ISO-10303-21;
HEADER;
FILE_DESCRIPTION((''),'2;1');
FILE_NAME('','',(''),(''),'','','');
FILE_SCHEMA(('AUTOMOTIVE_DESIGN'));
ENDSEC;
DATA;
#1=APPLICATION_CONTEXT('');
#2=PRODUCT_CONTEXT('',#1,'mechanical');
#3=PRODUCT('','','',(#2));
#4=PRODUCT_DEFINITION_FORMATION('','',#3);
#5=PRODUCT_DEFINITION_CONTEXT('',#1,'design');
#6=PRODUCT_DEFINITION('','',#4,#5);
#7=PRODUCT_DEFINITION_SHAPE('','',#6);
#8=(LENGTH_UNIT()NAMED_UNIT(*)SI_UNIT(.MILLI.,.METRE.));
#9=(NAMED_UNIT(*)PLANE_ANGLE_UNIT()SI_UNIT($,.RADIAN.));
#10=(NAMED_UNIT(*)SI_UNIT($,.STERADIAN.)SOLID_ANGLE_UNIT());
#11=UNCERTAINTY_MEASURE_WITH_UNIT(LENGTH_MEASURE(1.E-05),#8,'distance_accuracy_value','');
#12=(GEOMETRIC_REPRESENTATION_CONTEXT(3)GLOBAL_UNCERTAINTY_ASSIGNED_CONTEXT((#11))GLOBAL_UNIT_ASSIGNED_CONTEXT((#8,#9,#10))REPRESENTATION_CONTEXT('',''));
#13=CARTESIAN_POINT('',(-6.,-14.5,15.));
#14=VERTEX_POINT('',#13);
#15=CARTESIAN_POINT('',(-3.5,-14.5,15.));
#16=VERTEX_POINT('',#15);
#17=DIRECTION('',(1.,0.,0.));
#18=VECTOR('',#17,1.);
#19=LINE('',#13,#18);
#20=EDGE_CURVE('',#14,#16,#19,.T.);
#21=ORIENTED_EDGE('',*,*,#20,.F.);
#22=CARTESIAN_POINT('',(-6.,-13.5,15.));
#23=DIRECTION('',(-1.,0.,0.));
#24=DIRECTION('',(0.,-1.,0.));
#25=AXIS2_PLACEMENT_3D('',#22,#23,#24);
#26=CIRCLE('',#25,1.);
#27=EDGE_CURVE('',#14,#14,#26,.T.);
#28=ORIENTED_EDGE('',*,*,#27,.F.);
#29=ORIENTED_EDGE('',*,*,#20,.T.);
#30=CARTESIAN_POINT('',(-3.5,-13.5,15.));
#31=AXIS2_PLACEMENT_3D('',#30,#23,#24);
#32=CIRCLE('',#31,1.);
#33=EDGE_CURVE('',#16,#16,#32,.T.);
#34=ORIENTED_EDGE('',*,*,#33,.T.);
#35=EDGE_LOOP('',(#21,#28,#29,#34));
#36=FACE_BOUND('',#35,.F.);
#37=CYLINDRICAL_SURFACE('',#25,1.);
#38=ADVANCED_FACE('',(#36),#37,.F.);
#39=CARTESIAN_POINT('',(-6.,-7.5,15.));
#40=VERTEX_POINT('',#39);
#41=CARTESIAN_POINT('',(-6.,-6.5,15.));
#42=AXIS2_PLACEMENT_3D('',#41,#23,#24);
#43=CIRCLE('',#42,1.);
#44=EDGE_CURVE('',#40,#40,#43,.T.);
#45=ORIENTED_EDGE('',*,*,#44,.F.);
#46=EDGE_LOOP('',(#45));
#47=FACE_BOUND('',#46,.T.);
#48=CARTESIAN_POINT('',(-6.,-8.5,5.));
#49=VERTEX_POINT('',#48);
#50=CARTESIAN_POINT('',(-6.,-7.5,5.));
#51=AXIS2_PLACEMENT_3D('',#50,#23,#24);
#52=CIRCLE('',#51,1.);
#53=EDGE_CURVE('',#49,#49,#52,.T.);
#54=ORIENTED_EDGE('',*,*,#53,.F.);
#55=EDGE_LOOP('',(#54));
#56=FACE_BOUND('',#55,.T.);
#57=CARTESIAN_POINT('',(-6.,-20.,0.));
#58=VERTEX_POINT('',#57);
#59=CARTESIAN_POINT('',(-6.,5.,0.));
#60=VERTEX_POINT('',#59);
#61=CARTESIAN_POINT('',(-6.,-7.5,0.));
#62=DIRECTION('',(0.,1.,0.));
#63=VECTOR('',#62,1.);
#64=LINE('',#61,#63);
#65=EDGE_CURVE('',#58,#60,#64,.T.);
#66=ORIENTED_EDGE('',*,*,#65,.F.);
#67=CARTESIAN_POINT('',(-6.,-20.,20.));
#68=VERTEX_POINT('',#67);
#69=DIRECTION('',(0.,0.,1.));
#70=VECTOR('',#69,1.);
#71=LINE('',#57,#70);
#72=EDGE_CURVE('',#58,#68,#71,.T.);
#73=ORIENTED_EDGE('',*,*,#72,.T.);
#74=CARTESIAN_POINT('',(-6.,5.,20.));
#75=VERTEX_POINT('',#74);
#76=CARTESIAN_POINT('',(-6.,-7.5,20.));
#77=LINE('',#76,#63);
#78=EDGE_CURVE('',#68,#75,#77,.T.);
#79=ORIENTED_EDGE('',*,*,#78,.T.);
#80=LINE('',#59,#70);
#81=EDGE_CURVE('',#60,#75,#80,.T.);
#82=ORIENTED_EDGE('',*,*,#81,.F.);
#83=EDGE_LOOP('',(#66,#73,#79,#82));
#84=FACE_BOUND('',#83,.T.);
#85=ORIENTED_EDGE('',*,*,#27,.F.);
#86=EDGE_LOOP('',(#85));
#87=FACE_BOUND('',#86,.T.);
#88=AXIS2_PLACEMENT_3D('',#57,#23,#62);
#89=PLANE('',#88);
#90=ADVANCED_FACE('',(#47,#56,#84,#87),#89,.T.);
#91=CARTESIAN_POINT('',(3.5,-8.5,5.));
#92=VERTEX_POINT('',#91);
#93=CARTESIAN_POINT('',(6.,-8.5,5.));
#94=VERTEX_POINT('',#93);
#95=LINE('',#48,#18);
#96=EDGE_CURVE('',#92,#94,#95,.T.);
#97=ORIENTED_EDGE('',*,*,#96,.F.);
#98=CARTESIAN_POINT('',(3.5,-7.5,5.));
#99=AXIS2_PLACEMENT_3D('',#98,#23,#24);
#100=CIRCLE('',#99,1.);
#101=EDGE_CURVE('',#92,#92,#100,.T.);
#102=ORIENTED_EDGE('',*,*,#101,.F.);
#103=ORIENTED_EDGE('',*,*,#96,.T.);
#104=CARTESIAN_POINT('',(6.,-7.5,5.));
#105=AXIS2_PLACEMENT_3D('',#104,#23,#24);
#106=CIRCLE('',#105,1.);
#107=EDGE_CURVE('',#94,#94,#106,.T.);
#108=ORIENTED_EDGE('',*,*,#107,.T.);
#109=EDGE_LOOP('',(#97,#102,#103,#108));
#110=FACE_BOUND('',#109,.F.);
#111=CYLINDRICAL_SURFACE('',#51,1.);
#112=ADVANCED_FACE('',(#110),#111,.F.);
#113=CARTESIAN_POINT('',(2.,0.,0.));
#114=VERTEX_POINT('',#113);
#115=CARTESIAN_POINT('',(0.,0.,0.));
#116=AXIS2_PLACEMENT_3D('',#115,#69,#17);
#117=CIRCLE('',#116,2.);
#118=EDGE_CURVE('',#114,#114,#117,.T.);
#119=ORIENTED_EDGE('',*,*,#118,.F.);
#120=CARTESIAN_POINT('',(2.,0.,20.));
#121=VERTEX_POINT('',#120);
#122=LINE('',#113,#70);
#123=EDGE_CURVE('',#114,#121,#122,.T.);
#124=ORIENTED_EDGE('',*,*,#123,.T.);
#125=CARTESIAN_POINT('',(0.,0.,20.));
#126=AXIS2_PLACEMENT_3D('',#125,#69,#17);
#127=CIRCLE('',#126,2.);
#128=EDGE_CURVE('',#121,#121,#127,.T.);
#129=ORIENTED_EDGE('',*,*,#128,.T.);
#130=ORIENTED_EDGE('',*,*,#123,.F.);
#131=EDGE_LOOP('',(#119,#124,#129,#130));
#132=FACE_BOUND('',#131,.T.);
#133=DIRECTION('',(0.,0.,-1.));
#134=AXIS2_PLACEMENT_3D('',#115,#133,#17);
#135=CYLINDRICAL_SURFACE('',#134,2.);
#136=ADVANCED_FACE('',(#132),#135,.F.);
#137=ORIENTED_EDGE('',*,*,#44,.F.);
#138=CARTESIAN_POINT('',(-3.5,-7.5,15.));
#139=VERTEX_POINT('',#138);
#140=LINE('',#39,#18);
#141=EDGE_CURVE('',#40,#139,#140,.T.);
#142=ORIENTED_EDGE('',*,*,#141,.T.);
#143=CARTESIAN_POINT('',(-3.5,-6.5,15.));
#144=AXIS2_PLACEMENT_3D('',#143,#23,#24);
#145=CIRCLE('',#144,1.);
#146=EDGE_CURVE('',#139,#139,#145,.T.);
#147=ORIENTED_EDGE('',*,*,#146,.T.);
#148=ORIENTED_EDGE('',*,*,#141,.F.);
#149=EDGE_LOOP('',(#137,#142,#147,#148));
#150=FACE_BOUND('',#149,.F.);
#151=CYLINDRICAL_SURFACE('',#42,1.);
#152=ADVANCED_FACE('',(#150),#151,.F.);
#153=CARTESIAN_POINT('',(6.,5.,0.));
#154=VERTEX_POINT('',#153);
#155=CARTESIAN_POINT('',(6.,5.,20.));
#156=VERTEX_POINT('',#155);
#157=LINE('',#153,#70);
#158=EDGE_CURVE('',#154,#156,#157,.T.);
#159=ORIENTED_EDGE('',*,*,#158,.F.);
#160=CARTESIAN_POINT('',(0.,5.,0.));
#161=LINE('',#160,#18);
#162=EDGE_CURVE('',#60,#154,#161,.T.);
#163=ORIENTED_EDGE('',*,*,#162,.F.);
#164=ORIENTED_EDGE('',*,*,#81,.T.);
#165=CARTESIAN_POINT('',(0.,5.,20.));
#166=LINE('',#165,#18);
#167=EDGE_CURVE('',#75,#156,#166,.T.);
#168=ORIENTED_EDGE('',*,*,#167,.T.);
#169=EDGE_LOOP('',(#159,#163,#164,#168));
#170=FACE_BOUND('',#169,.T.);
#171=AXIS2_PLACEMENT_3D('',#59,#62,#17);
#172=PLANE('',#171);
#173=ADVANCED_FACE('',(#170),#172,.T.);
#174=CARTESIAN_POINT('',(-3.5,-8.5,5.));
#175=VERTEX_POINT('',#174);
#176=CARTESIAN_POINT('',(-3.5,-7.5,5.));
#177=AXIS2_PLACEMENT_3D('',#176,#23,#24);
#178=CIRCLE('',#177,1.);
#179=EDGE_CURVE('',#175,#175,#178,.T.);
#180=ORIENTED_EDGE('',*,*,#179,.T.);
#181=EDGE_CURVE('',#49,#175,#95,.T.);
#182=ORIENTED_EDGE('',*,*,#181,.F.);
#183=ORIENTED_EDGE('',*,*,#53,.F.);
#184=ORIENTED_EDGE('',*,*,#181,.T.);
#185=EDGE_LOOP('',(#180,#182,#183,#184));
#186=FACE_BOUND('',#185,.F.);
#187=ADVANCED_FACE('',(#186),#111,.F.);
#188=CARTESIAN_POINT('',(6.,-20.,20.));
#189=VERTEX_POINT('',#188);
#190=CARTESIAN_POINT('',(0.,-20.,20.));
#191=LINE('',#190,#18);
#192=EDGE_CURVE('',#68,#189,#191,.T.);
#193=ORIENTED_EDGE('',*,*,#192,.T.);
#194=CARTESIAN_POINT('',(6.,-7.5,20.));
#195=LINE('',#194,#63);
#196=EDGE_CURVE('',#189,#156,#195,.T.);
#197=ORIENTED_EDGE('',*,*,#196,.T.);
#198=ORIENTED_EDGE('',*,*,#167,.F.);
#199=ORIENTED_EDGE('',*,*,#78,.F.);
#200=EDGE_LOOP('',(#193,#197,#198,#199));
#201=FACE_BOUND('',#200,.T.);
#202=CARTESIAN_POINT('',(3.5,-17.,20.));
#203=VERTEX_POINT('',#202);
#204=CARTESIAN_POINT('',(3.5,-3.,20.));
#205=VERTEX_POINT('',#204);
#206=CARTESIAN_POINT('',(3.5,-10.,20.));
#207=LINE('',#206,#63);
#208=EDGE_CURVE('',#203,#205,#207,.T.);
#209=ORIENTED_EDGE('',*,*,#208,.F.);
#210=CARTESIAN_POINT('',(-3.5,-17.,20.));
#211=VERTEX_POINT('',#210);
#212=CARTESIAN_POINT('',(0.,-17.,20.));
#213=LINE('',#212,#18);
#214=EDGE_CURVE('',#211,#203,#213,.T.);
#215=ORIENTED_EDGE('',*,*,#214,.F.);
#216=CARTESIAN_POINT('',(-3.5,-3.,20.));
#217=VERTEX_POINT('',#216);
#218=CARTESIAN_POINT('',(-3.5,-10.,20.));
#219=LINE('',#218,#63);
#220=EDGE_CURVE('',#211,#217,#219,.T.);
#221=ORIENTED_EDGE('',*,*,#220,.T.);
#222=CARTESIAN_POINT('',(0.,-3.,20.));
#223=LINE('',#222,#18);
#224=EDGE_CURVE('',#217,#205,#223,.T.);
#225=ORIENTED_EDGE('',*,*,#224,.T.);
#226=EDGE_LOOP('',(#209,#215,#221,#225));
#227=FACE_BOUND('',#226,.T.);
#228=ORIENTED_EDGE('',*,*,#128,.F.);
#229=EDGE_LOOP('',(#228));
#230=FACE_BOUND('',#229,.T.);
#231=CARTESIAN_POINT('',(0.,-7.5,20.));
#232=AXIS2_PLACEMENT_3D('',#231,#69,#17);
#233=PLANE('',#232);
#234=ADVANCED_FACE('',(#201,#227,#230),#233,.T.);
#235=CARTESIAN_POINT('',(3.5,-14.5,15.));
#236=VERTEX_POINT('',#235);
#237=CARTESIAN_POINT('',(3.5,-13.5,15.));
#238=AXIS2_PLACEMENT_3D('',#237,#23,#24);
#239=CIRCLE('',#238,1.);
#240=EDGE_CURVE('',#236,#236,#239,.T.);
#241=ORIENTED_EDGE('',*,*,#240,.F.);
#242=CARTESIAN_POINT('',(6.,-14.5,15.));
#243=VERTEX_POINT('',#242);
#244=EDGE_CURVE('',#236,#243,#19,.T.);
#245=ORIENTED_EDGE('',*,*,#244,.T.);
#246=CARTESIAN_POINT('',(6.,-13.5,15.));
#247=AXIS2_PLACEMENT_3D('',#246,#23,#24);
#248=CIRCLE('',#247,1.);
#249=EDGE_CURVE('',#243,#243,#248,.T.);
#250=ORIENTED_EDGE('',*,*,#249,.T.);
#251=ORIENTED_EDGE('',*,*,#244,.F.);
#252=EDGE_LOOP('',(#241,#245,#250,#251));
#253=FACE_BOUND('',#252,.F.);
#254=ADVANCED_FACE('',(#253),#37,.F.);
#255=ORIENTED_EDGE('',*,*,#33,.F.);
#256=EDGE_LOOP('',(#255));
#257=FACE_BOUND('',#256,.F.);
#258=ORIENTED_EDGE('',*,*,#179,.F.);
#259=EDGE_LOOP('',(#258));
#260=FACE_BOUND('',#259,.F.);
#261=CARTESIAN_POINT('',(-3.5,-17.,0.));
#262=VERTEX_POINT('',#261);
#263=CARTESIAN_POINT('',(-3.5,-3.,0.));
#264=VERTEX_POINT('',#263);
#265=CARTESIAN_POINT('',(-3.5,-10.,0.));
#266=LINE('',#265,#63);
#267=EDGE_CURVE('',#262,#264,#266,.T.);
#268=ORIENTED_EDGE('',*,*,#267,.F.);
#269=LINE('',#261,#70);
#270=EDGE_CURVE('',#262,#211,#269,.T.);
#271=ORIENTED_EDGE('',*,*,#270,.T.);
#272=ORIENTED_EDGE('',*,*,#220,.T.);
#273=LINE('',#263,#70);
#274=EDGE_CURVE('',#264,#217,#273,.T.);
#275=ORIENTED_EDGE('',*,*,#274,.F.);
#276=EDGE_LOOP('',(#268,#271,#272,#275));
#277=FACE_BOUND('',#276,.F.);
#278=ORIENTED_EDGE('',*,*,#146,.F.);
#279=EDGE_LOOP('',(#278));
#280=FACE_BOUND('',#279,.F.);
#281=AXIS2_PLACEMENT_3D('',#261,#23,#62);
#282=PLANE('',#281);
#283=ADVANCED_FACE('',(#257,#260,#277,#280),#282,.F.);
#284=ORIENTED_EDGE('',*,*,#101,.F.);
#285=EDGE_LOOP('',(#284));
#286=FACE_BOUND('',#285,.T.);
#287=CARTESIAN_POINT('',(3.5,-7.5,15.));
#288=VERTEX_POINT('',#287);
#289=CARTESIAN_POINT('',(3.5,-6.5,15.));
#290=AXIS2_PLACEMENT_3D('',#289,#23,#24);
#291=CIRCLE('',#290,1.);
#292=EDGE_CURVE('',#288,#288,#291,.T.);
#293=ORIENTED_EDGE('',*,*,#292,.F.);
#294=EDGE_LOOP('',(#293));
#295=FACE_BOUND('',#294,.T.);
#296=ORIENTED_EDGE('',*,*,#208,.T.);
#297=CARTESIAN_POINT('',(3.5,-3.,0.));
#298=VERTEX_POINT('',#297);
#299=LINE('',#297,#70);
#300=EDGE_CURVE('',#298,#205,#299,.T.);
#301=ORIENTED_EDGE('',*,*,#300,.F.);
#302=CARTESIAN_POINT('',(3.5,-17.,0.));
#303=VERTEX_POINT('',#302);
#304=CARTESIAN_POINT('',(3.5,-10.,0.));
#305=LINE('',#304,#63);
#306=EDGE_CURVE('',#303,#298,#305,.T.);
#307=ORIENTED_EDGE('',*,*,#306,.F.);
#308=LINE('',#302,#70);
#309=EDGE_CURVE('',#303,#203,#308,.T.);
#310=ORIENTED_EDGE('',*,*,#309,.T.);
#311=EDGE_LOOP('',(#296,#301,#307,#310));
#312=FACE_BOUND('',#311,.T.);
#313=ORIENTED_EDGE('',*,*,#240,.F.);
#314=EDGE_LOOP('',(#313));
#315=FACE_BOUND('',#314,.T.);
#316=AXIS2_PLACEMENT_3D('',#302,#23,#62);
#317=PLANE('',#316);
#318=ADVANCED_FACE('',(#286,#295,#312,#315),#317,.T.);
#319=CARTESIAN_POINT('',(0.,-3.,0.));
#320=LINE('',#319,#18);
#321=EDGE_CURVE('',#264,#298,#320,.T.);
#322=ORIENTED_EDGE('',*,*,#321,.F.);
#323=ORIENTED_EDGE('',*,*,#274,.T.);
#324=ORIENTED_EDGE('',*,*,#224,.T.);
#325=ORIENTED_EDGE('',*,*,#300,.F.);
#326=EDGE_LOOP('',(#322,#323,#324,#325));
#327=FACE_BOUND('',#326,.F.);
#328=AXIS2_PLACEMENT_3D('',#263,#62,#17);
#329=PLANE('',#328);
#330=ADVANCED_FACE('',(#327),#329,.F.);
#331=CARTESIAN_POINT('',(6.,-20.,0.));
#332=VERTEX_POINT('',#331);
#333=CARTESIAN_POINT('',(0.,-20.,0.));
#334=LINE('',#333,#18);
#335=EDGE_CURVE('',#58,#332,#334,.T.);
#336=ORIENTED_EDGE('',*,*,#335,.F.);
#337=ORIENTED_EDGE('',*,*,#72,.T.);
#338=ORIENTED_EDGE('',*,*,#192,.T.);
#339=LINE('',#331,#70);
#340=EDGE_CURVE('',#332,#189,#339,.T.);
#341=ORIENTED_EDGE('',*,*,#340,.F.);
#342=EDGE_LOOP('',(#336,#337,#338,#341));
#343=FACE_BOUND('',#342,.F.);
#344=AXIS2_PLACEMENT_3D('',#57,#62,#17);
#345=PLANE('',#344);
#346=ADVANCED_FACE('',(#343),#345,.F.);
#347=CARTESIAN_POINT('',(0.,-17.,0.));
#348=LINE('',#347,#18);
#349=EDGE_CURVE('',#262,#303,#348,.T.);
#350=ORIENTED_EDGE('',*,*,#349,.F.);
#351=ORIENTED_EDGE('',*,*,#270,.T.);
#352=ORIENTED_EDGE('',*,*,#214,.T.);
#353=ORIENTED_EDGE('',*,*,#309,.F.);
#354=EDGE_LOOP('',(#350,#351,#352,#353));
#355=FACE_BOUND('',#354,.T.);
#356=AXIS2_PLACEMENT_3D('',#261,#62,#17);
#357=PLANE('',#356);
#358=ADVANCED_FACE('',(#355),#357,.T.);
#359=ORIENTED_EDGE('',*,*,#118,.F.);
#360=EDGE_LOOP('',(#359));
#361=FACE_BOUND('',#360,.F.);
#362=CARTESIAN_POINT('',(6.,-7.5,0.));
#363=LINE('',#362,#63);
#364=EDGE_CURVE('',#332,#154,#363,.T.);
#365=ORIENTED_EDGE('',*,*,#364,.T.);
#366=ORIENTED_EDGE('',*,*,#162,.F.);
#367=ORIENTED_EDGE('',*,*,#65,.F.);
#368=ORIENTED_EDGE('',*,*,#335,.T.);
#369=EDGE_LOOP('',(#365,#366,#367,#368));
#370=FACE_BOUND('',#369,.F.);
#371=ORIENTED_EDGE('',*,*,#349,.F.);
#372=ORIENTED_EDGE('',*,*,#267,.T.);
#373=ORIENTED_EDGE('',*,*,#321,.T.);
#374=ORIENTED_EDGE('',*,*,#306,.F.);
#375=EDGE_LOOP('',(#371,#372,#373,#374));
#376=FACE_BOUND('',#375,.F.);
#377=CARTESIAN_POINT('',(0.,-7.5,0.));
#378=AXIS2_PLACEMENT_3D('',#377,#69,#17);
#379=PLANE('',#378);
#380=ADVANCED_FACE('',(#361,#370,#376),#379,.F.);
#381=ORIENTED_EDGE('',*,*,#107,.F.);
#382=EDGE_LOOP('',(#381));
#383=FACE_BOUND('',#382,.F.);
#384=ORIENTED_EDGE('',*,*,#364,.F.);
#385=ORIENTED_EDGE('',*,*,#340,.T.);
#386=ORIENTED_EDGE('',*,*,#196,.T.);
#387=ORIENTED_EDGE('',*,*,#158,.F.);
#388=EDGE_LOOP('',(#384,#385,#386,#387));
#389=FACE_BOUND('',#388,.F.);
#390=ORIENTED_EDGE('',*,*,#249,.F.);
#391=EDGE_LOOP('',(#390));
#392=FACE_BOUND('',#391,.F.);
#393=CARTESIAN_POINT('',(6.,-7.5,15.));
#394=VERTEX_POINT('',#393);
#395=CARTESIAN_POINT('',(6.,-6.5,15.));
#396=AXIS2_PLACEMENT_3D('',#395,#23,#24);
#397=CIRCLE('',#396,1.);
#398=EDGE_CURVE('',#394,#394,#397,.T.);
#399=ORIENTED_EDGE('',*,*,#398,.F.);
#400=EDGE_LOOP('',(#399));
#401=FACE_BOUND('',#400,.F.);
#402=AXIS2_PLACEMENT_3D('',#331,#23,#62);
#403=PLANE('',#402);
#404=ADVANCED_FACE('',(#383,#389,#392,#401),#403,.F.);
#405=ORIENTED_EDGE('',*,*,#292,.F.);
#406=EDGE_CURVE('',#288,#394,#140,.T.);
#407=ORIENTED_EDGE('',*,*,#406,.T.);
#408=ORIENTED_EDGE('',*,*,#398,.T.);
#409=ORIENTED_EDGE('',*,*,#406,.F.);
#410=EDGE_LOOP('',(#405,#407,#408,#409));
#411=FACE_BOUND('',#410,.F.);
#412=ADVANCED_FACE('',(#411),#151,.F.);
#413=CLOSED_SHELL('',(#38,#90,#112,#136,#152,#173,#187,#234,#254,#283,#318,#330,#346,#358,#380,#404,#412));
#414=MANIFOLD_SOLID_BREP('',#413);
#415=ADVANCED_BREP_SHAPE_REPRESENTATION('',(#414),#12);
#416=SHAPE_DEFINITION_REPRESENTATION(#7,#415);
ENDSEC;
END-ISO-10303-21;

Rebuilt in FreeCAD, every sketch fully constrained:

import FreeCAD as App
import Part
import Sketcher
from FreeCAD import Vector

doc = App.newDocument("Part")
body = doc.addObject("PartDesign::Body", "Body")

# Sketch on XY plane
sketch1 = body.newObject("Sketcher::SketchObject", "Sketch")
sketch1.AttachmentSupport = (doc.getObject("XY_Plane"), [""])
sketch1.MapMode = "FlatFace"
sketch1.addGeometry(Part.LineSegment(Vector(-6, 5, 0), Vector(-6, -20, 0)), False)
sketch1.addGeometry(Part.LineSegment(Vector(-6, -20, 0), Vector(6, -20, 0)), False)
sketch1.addGeometry(Part.LineSegment(Vector(6, -20, 0), Vector(6, 5, 0)), False)
sketch1.addGeometry(Part.LineSegment(Vector(6, 5, 0), Vector(-6, 5, 0)), False)
sketch1.addGeometry(Part.LineSegment(Vector(3.5, -17, 0), Vector(-3.5, -17, 0)), False)
sketch1.addGeometry(Part.LineSegment(Vector(-3.5, -17, 0), Vector(-3.5, -3, 0)), False)
sketch1.addGeometry(Part.LineSegment(Vector(-3.5, -3, 0), Vector(3.5, -3, 0)), False)
sketch1.addGeometry(Part.LineSegment(Vector(3.5, -3, 0), Vector(3.5, -17, 0)), False)
sketch1.addGeometry(Part.Circle(Vector(0, 0, 0), Vector(0, 0, 1), 2), False)
sketch1.addConstraint(Sketcher.Constraint("Coincident", 0, 2, 1, 1))
sketch1.addConstraint(Sketcher.Constraint("Coincident", 1, 2, 2, 1))
sketch1.addConstraint(Sketcher.Constraint("Coincident", 2, 2, 3, 1))
sketch1.addConstraint(Sketcher.Constraint("Coincident", 3, 2, 0, 1))
sketch1.addConstraint(Sketcher.Constraint("Coincident", 4, 2, 5, 1))
sketch1.addConstraint(Sketcher.Constraint("Coincident", 5, 2, 6, 1))
sketch1.addConstraint(Sketcher.Constraint("Coincident", 6, 2, 7, 1))
sketch1.addConstraint(Sketcher.Constraint("Coincident", 7, 2, 4, 1))
sketch1.addConstraint(Sketcher.Constraint("Vertical", 0))
sketch1.addConstraint(Sketcher.Constraint("Horizontal", 1))
sketch1.addConstraint(Sketcher.Constraint("Vertical", 2))
sketch1.addConstraint(Sketcher.Constraint("Horizontal", 3))
sketch1.addConstraint(Sketcher.Constraint("Horizontal", 4))
sketch1.addConstraint(Sketcher.Constraint("Vertical", 5))
sketch1.addConstraint(Sketcher.Constraint("Horizontal", 6))
sketch1.addConstraint(Sketcher.Constraint("Vertical", 7))
sketch1.addConstraint(Sketcher.Constraint("Coincident", 8, 3, -1, 1))
sketch1.addConstraint(Sketcher.Constraint("Diameter", 8, 4.0))
sketch1.addConstraint(Sketcher.Constraint("DistanceX", 1, 1, 1, 2, 12.0))
sketch1.addConstraint(Sketcher.Constraint("DistanceX", 4, 2, 4, 1, 7.0))
sketch1.addConstraint(Sketcher.Constraint("DistanceY", 0, 2, 0, 1, 25.0))
sketch1.addConstraint(Sketcher.Constraint("DistanceY", 5, 1, 5, 2, 14.0))
sketch1.addConstraint(Sketcher.Constraint("DistanceX", 0, 2, -1, 1, 6.0))
sketch1.addConstraint(Sketcher.Constraint("DistanceY", 0, 2, -1, 1, 20.0))
sketch1.addConstraint(Sketcher.Constraint("DistanceY", 4, 2, -1, 1, 17.0))
sketch1.addConstraint(Sketcher.Constraint("DistanceX", 4, 2, -1, 1, 3.5))
pad1 = body.newObject("PartDesign::Pad", "Pad")
pad1.Profile = sketch1
pad1.Length = 20

# Sketch on YZ plane
sketch2 = body.newObject("Sketcher::SketchObject", "Sketch001")
sketch2.AttachmentSupport = (doc.getObject("YZ_Plane"), [""])
sketch2.MapMode = "FlatFace"
sketch2.AttachmentOffset = App.Placement(Vector(0, 0, -6), App.Rotation())
sketch2.addGeometry(Part.Circle(Vector(-13.5, 15, 0), Vector(0, 0, 1), 1), False)
sketch2.addGeometry(Part.Circle(Vector(-6.5, 15, 0), Vector(0, 0, 1), 1), False)
sketch2.addGeometry(Part.Circle(Vector(-7.5, 5, 0), Vector(0, 0, 1), 1), False)
sketch2.addConstraint(Sketcher.Constraint("Equal", 0, 1))
sketch2.addConstraint(Sketcher.Constraint("Equal", 1, 2))
sketch2.addConstraint(Sketcher.Constraint("Horizontal", 0, 3, 1, 3))
sketch2.addConstraint(Sketcher.Constraint("Diameter", 0, 2.0))
sketch2.addConstraint(Sketcher.Constraint("DistanceY", -1, 1, 0, 3, 15.0))
sketch2.addConstraint(Sketcher.Constraint("DistanceY", -1, 1, 2, 3, 5.0))
sketch2.addConstraint(Sketcher.Constraint("DistanceX", 0, 3, 1, 3, 7.0))
sketch2.addConstraint(Sketcher.Constraint("DistanceX", 2, 3, 1, 3, 1.0))
sketch2.addConstraint(Sketcher.Constraint("DistanceX", 0, 3, -1, 1, 13.5))
pocket1 = body.newObject("PartDesign::Pocket", "Pocket")
pocket1.Profile = sketch2
pocket1.Type = "ThroughAll"
pocket1.Reversed = True

doc.recompute()
